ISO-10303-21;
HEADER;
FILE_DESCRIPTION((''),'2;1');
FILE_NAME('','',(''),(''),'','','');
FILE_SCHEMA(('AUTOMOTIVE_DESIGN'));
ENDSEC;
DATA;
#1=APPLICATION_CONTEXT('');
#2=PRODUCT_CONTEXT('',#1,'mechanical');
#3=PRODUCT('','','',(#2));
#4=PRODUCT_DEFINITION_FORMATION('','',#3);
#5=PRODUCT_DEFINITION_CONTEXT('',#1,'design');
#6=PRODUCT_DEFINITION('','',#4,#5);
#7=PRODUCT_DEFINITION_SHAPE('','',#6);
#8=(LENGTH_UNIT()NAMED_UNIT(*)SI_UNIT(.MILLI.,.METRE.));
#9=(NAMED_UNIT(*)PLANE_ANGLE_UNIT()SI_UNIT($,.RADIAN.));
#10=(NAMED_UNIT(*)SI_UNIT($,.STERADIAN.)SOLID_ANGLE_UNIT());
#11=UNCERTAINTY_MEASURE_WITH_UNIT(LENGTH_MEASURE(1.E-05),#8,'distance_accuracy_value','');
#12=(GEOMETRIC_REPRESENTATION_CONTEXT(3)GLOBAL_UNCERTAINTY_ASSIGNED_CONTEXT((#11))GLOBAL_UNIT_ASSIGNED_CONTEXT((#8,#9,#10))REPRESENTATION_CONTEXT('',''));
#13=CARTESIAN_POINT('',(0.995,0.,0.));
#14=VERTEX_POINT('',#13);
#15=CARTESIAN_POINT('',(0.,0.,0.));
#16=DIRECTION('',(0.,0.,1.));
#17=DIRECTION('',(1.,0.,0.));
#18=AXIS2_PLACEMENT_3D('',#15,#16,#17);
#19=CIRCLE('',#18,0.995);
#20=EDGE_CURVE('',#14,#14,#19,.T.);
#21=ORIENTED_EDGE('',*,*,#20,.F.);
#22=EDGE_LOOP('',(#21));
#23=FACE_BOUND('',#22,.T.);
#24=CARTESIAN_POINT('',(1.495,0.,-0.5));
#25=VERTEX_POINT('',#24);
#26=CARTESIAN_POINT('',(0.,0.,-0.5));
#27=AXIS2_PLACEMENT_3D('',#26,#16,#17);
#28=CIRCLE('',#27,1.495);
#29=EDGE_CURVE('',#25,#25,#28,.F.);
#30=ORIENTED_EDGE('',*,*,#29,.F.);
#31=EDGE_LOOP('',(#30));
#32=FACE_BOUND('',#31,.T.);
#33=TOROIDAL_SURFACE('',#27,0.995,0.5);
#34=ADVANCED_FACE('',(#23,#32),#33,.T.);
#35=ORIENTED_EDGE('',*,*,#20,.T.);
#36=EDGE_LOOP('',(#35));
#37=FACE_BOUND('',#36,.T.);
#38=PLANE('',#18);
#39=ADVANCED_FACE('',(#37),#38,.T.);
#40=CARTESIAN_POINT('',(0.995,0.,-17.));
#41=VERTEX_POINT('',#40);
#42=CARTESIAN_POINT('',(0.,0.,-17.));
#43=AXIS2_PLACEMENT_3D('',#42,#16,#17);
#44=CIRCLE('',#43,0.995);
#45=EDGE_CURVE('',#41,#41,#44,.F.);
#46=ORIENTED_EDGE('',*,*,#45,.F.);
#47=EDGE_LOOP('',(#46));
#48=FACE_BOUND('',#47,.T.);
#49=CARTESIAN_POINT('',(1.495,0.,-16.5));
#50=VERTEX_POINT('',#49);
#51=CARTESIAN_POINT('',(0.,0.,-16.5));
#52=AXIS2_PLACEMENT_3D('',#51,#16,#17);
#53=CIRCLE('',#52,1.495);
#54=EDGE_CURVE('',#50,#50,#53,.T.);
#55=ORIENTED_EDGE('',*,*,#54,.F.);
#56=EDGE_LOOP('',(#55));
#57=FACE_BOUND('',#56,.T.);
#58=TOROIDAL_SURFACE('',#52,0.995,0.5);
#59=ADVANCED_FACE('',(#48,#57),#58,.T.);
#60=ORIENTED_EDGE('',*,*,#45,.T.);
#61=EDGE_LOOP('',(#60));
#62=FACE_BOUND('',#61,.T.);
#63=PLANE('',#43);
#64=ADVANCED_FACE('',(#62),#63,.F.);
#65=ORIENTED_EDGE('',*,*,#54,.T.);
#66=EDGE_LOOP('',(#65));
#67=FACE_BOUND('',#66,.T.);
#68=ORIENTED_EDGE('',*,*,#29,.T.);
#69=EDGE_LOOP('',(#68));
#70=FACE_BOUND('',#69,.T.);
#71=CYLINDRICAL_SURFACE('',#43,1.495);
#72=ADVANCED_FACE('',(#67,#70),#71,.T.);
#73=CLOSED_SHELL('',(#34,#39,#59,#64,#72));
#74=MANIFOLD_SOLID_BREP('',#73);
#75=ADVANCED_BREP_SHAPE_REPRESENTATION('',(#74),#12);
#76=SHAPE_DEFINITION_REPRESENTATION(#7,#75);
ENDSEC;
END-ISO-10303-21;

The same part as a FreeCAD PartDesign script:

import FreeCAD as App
import Part
import Sketcher

V = App.Vector
Q = App.Units.Quantity


def edges_at(feature, points):
    """Names of the edges that pass closest to the given points."""
    edges = feature.Shape.Edges
    near = lambda p: min(range(len(edges)), key=lambda i: edges[i].distToShape(Part.Vertex(*p))[0])
    return sorted({f"Edge{near(p) + 1}" for p in points})

doc = App.newDocument("Part")
body = doc.addObject("PartDesign::Body", "Body")

# Sketch on XY plane
sketch1 = doc.addObject("Sketcher::SketchObject", "Sketch")
body.addObject(sketch1)
sketch1.AttachmentSupport = (doc.XY_Plane, [""])
sketch1.MapMode = "FlatFace"
sketch1.addGeometry(Part.Circle(V(0, 0, 0), V(0, 0, 1), 1.495), False)
sketch1.addConstraint(Sketcher.Constraint("Coincident", 0, 3, -1, 1))
sketch1.addConstraint(Sketcher.Constraint("Diameter", 0, Q("2.99 mm")))
pad1 = doc.addObject("PartDesign::Pad", "Pad")
body.addObject(pad1)
pad1.Profile = sketch1
pad1.Length = 17
pad1.Reversed = True
doc.recompute()

fillet = doc.addObject("PartDesign::Fillet", "Fillet")
body.addObject(fillet)
fillet.Base = (pad1, edges_at(pad1, [(-1.495, 0, 0), (-1.495, 0, -17)]))
fillet.Radius = 0.5

doc.recompute()
